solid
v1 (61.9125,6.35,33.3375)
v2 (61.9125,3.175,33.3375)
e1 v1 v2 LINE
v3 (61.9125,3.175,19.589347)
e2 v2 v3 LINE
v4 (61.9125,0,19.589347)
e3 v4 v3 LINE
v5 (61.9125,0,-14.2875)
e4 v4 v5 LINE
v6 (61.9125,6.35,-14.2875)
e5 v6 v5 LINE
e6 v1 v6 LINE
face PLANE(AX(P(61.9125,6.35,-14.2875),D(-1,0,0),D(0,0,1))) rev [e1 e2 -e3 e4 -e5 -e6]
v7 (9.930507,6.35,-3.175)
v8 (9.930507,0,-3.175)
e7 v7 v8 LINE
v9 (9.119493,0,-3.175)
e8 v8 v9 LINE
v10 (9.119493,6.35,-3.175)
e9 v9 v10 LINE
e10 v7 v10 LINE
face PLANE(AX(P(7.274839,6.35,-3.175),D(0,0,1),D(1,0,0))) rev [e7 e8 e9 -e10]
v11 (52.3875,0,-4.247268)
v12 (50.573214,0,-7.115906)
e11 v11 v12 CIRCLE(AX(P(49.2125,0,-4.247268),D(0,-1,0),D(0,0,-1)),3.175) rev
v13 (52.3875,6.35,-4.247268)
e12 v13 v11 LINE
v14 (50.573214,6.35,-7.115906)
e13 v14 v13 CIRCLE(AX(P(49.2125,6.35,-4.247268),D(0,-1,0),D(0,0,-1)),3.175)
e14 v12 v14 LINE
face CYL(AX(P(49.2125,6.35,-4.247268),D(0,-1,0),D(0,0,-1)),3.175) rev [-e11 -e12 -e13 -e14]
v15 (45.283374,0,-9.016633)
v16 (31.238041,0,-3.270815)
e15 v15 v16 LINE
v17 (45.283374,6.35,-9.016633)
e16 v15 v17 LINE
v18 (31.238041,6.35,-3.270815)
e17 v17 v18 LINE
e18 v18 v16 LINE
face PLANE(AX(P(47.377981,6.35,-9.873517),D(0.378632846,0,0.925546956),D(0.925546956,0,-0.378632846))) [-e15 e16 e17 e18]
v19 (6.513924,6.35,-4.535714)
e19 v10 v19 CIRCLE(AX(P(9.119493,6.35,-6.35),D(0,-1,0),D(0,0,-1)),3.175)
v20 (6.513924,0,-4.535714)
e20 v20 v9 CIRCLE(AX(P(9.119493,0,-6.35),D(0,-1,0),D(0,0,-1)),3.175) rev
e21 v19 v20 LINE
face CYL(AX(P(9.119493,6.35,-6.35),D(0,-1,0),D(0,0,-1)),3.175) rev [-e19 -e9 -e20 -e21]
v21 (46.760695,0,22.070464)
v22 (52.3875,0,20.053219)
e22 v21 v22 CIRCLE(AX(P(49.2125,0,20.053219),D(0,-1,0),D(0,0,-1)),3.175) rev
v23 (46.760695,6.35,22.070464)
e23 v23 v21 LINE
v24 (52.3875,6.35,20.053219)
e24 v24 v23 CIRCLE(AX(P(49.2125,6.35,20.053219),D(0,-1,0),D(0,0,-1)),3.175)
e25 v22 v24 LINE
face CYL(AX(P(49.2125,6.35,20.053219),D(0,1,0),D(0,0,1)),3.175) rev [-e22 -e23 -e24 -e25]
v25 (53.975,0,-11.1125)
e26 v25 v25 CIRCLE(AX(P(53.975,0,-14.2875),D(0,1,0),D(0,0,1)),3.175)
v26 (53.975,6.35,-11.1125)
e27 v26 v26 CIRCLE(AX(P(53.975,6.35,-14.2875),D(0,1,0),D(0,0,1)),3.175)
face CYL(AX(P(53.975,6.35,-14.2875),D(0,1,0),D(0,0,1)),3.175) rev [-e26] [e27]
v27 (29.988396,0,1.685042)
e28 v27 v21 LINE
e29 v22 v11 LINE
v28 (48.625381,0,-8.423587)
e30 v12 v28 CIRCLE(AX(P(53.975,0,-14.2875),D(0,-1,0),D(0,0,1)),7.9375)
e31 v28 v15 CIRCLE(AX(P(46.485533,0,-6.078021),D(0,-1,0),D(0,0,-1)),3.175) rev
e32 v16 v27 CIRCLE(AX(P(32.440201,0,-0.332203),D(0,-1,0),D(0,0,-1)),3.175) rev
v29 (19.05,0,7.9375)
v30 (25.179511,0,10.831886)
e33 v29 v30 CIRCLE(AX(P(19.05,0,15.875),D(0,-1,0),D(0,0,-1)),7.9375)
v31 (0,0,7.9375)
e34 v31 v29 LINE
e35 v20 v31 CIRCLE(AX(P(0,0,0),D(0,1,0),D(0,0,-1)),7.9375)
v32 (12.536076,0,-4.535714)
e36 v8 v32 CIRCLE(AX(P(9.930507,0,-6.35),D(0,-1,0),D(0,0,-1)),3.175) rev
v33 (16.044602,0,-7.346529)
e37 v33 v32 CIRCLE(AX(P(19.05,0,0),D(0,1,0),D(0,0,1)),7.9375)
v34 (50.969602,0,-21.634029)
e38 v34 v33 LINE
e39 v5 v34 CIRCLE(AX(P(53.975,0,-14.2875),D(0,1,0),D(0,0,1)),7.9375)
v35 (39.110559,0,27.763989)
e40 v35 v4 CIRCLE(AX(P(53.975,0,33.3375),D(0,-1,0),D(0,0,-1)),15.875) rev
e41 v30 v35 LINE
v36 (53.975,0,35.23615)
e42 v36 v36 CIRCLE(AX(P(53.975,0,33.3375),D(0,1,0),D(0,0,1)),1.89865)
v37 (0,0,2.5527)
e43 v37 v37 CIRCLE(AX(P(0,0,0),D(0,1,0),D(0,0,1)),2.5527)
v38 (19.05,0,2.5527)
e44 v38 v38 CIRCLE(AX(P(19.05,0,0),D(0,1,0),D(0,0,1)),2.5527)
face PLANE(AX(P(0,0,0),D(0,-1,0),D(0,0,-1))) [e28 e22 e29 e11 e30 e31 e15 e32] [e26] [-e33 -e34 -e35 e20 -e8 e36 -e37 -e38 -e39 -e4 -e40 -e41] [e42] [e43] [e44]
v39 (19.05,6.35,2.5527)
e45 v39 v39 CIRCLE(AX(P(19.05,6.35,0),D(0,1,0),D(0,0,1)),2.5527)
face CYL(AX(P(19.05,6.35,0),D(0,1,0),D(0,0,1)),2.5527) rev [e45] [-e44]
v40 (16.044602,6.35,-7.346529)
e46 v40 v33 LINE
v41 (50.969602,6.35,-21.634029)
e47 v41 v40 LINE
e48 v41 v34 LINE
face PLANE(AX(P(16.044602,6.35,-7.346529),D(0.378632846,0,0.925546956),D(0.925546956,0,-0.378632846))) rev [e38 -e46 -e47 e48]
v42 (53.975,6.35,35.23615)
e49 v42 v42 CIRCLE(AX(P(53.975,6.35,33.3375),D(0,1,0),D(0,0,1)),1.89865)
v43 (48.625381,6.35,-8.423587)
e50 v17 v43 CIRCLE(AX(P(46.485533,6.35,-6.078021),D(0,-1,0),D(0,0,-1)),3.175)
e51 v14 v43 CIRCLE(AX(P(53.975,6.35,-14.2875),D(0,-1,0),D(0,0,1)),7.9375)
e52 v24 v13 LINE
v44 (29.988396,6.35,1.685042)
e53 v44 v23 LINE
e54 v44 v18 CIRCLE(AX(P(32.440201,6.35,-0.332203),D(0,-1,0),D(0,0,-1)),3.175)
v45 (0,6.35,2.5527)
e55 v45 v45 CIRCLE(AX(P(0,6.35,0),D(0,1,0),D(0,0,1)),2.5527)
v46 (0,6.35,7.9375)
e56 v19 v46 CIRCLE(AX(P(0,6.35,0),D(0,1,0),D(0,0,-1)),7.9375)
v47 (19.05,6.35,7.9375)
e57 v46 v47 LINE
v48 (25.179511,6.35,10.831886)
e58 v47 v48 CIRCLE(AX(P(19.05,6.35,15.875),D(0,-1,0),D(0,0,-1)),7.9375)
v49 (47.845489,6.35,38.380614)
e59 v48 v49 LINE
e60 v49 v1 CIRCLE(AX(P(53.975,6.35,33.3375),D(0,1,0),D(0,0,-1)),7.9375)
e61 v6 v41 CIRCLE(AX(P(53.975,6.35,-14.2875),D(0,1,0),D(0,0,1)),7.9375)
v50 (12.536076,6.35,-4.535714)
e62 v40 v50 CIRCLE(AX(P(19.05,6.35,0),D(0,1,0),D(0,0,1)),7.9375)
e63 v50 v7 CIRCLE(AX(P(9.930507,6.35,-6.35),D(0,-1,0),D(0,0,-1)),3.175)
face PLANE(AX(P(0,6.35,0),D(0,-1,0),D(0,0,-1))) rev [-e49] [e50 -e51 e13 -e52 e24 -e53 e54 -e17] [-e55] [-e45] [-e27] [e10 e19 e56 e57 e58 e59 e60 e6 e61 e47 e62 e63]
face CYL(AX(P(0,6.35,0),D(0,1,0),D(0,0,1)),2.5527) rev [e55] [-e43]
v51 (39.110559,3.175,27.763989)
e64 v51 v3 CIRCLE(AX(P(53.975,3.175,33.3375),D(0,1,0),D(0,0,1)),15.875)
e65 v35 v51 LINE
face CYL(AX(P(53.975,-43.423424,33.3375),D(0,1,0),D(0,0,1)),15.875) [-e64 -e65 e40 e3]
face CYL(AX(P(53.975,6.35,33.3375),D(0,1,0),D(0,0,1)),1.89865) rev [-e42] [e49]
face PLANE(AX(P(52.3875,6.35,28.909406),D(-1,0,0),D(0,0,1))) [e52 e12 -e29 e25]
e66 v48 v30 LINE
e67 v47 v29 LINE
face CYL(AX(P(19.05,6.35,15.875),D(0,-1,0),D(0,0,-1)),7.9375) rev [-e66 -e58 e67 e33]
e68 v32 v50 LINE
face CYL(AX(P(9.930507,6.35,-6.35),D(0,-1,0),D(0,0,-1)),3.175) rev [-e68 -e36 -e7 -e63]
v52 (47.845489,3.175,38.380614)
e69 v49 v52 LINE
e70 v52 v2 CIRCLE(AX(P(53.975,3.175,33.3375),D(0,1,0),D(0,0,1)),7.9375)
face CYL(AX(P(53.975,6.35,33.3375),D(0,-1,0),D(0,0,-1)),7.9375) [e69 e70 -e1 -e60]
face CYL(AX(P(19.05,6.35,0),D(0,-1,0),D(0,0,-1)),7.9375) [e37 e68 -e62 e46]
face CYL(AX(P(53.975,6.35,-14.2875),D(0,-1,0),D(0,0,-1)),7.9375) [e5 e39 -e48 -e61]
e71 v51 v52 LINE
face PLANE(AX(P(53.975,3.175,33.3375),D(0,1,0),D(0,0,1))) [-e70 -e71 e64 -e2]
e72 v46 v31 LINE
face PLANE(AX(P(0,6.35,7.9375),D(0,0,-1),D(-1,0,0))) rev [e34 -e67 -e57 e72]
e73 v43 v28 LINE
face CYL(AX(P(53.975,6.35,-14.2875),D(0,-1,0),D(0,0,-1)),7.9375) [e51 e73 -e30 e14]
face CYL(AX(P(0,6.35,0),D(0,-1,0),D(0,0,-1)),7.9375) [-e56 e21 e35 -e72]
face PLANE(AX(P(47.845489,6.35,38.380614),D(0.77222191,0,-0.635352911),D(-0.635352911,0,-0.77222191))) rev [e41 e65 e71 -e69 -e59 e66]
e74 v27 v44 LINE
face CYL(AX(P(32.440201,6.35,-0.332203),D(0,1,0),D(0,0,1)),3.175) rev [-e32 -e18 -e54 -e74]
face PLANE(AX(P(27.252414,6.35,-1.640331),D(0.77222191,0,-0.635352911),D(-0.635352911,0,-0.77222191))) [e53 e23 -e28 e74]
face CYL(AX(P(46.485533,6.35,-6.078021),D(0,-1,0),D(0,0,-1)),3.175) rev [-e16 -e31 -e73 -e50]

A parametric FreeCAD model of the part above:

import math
import FreeCAD as App
import Part
import Sketcher
from FreeCAD import Vector
Q = App.Units.Quantity


def edges_at(feature, points):
    """Names of the edges that pass closest to the given points."""
    edges = feature.Shape.Edges
    near = lambda p: min(range(len(edges)), key=lambda i: edges[i].distToShape(Part.Vertex(*p))[0])
    return sorted({f"Edge{near(p) + 1}" for p in points})

doc = App.newDocument("Part")
body = doc.addObject("PartDesign::Body", "Body")

sketch1 = body.newObject("Sketcher::SketchObject", "Sketch")
sketch1.AttachmentSupport = (doc.getObject("XZ_Plane"), [""])
sketch1.MapMode = "FlatFace"
sketch1.addGeometry([
    Part.LineSegment(Vector(0, 7.9375, 0), Vector(19.05, 7.9375, 0)),
    Part.ArcOfCircle(Part.Circle(Vector(19.05, 15.875, 0), Vector(0, 0, 1), 7.9375), math.radians(-90), math.radians(-39.446164)),
    Part.LineSegment(Vector(25.179511, 10.831886, 0), Vector(47.845489, 38.380614, 0)),
    Part.ArcOfCircle(Part.Circle(Vector(53.975, 33.3375, 0), Vector(0, 0, 1), 7.9375), math.radians(0), math.radians(140.553836)),
    Part.LineSegment(Vector(61.9125, 33.3375, 0), Vector(61.9125, -14.2875, 0)),
    Part.ArcOfCircle(Part.Circle(Vector(53.975, -14.2875, 0), Vector(0, 0, 1), 7.9375), math.radians(-112.249024), math.radians(0)),
    Part.LineSegment(Vector(50.969602, -21.634029, 0), Vector(16.044602, -7.346529, 0)),
    Part.ArcOfCircle(Part.Circle(Vector(19.05, 0, 0), Vector(0, 0, 1), 7.9375), math.radians(-156.421822), math.radians(-112.249024)),
    Part.LineSegment(Vector(11.775161, -3.175, 0), Vector(7.274839, -3.175, 0)),
    Part.ArcOfCircle(Part.Circle(Vector(0, 0, 0), Vector(0, 0, 1), 7.9375), math.radians(-39.659248), math.radians(-23.578178)),
    Part.LineSegment(Vector(6.110714, -5.065874, 0), Vector(-18.894457, -35.228374, 0)),
    Part.ArcOfCircle(Part.Circle(Vector(-25.005171, -30.1625, 0), Vector(0, 0, 1), 7.9375), math.radians(-120), math.radians(-39.659248)),
    Part.LineSegment(Vector(-28.973921, -37.036577, 0), Vector(-67.46875, -14.811577, 0)),
    Part.ArcOfCircle(Part.Circle(Vector(-63.5, -7.9375, 0), Vector(0, 0, 1), 7.9375), math.radians(97.125016), math.radians(240)),
    Part.LineSegment(Vector(-64.484526, -0.061294, 0), Vector(-0.984526, 7.876206, 0)),
    Part.ArcOfCircle(Part.Circle(Vector(0, 0, 0), Vector(0, 0, 1), 7.9375), math.radians(90), math.radians(97.125016)),
    Part.LineSegment(Vector(52.3875, 28.909406, 0), Vector(27.252414, -1.640331, 0)),
    Part.LineSegment(Vector(27.252414, -1.640331, 0), Vector(47.377981, -9.873517, 0)),
    Part.ArcOfCircle(Part.Circle(Vector(53.975, -14.2875, 0), Vector(0, 0, 1), 7.9375), math.radians(101.536959), math.radians(146.214017)),
    Part.LineSegment(Vector(52.3875, -6.51037, 0), Vector(52.3875, 28.909406, 0)),
    Part.LineSegment(Vector(-11.734123, -3.06662, 0), Vector(-49.230437, -7.753659, 0)),
    Part.ArcOfCircle(Part.Circle(Vector(-48.836627, -10.904141, 0), Vector(0, 0, 1), 3.175), math.radians(97.125016), math.radians(240)),
    Part.LineSegment(Vector(-50.424127, -13.653772, 0), Vector(-30.946613, -24.89912, 0)),
    Part.ArcOfCircle(Part.Circle(Vector(-25.005171, -30.1625, 0), Vector(0, 0, 1), 7.9375), math.radians(61.877711), math.radians(138.463041)),
    Part.LineSegment(Vector(-21.26379, -23.162073, 0), Vector(-8.896027, -8.243452, 0)),
    Part.ArcOfCircle(Part.Circle(Vector(-11.340312, -6.217102, 0), Vector(0, 0, 1), 3.175), math.radians(-39.659248), math.radians(97.125016)),
], False)
sketch1.addConstraint([
    Sketcher.Constraint("Tangent", 0, 2, 1, 1),
    Sketcher.Constraint("Tangent", 1, 2, 2, 1),
    Sketcher.Constraint("Tangent", 2, 2, 3, 2),
    Sketcher.Constraint("Tangent", 3, 1, 4, 1),
    Sketcher.Constraint("Tangent", 4, 2, 5, 2),
    Sketcher.Constraint("Tangent", 5, 1, 6, 1),
    Sketcher.Constraint("Tangent", 6, 2, 7, 2),
    Sketcher.Constraint("Coincident", 7, 1, 8, 1),
    Sketcher.Constraint("Coincident", 8, 2, 9, 2),
    Sketcher.Constraint("Tangent", 9, 1, 10, 1),
    Sketcher.Constraint("Tangent", 10, 2, 11, 2),
    Sketcher.Constraint("Tangent", 11, 1, 12, 1),
    Sketcher.Constraint("Tangent", 12, 2, 13, 2),
    Sketcher.Constraint("Tangent", 13, 1, 14, 1),
    Sketcher.Constraint("Tangent", 14, 2, 15, 2),
    Sketcher.Constraint("Tangent", 15, 1, 0, 1),
    Sketcher.Constraint("Coincident", 16, 2, 17, 1),
    Sketcher.Constraint("Coincident", 17, 2, 18, 2),
    Sketcher.Constraint("Coincident", 18, 1, 19, 1),
    Sketcher.Constraint("Coincident", 19, 2, 16, 1),
    Sketcher.Constraint("Tangent", 20, 2, 21, 1),
    Sketcher.Constraint("Tangent", 21, 2, 22, 1),
    Sketcher.Constraint("Coincident", 22, 2, 23, 2),
    Sketcher.Constraint("Coincident", 23, 1, 24, 1),
    Sketcher.Constraint("Tangent", 24, 2, 25, 1),
    Sketcher.Constraint("Tangent", 25, 2, 20, 1),
    Sketcher.Constraint("Horizontal", 0),
    Sketcher.Constraint("Vertical", 4),
    Sketcher.Constraint("Horizontal", 8),
    Sketcher.Constraint("Vertical", 19),
    Sketcher.Constraint("Coincident", 9, 3, -1, 1),
    Sketcher.Constraint("Coincident", 15, 3, -1, 1),
    Sketcher.Constraint("Coincident", 18, 3, 5, 3),
    Sketcher.Constraint("Coincident", 23, 3, 11, 3),
    Sketcher.Constraint("Equal", 1, 3),
    Sketcher.Constraint("Equal", 3, 5),
    Sketcher.Constraint("Equal", 5, 7),
    Sketcher.Constraint("Equal", 7, 9),
    Sketcher.Constraint("Equal", 9, 11),
    Sketcher.Constraint("Equal", 11, 13),
    Sketcher.Constraint("Equal", 13, 15),
    Sketcher.Constraint("Equal", 15, 18),
    Sketcher.Constraint("Equal", 18, 23),
    Sketcher.Constraint("Equal", 21, 25),
    Sketcher.Constraint("PointOnObject", 7, 3, -1),
    Sketcher.Constraint("Parallel", 2, 16),
    Sketcher.Constraint("Parallel", 6, 17),
    Sketcher.Constraint("Parallel", 14, 20),
    Sketcher.Constraint("Parallel", 12, 22),
    Sketcher.Constraint("Parallel", 10, 24),
    Sketcher.Constraint("Vertical", 1, 3, 7, 3),
    Sketcher.Constraint("Angle", 12, Q("150 deg")),
    Sketcher.Constraint("Radius", 1, Q("0.3125 in")),
    Sketcher.Constraint("Radius", 21, Q("0.125 in")),
    Sketcher.Constraint("DistanceX", 0, 1, 0, 2, Q("0.75 in")),
    Sketcher.Constraint("DistanceX", 13, 3, -1, 1, Q("2.5 in")),
    Sketcher.Constraint("DistanceY", 11, 3, 3, 3, Q("2.5 in")),
    Sketcher.Constraint("Distance", 12, Q("1.75 in")),
    Sketcher.Constraint("DistanceY", 4, 2, 4, 1, Q("1.875 in")),
    Sketcher.Constraint("DistanceX", -1, 1, 3, 3, Q("2.125 in")),
    Sketcher.Constraint("DistanceY", -1, 1, 3, 3, Q("1.3125 in")),
    Sketcher.Constraint("DistanceY", 7, 1, -1, 1, Q("0.125 in")),
    Sketcher.Constraint("DistanceX", -1, 1, 18, 1, Q("2.0625 in")),
    Sketcher.Constraint("DistanceY", 25, 3, -1, 1, 6.217102),
    Sketcher.Constraint("DistanceX", 13, 1, 21, 3, 15.647899),
    Sketcher.Constraint("DistanceY", 6, 2, 16, 2, 5.706198),
    Sketcher.Constraint("DistanceY", 10, 2, 23, 1, 12.066302),
    Sketcher.Constraint("DistanceY", 19, 1, 19, 2, 35.419776),
])
pad1 = body.newObject("PartDesign::Pad", "Pad")
pad1.Profile = sketch1
pad1.Length = Q("0.25 in")
pad1.Reversed = True
doc.recompute()

fillet = body.newObject("PartDesign::Fillet", "Fillet")
fillet.Base = (pad1, edges_at(pad1, [
    (47.378, 3.175, -9.874),
    (27.252, 3.175, -1.64),
    (52.388, 3.175, 28.909),
    (52.388, 3.175, -6.51),
    (-21.264, 3.175, -23.162),
    (-30.947, 3.175, -24.899),
]))
fillet.Radius = Q("0.125 in")

sketch2 = body.newObject("Sketcher::SketchObject", "Sketch001")
sketch2.AttachmentSupport = (doc.getObject("XZ_Plane"), [""])
sketch2.MapMode = "FlatFace"
sketch2.AttachmentOffset = App.Placement(Vector(0, 0, -0.25 * 25.4), App.Rotation())
sketch2.addGeometry([
    Part.Circle(Vector(0, 0, 0), Vector(0, 0, 1), 2.5527),
    Part.Circle(Vector(19.05, 0, 0), Vector(0, 0, 1), 2.5527),
], False)
sketch2.addConstraint([
    Sketcher.Constraint("Coincident", 0, 3, -1, 1),
    Sketcher.Constraint("Equal", 0, 1),
    Sketcher.Constraint("PointOnObject", 1, 3, -1),
    Sketcher.Constraint("Diameter", 0, Q("0.201 in")),
    Sketcher.Constraint("DistanceX", -1, 1, 1, 3, Q("0.75 in")),
])
doc.recompute()
hole = body.newObject("PartDesign::Hole", "Hole")
hole.Profile = sketch2
hole.ThreadType = "None"
hole.Diameter = Q("0.201 in")
hole.DepthType = "ThroughAll"
hole.Reversed = True

sketch3 = body.newObject("Sketcher::SketchObject", "Sketch002")
sketch3.AttachmentSupport = (doc.getObject("XZ_Plane"), [""])
sketch3.MapMode = "FlatFace"
sketch3.AttachmentOffset = App.Placement(Vector(0, 0, -0.25 * 25.4), App.Rotation())
sketch3.addGeometry([
    Part.Circle(Vector(53.975, -14.2875, 0), Vector(0, 0, 1), 3.175),
    Part.Circle(Vector(-63.5, -7.9375, 0), Vector(0, 0, 1), 3.175),
], False)
sketch3.addConstraint([
    Sketcher.Constraint("Equal", 0, 1),
    Sketcher.Constraint("Diameter", 0, Q("0.25 in")),
    Sketcher.Constraint("DistanceX", 1, 3, -1, 1, Q("2.5 in")),
    Sketcher.Constraint("DistanceY", 0, 3, 1, 3, Q("0.25 in")),
    Sketcher.Constraint("DistanceX", -1, 1, 0, 3, Q("2.125 in")),
    Sketcher.Constraint("DistanceY", 0, 3, -1, 1, Q("0.5625 in")),
])
doc.recompute()
hole2 = body.newObject("PartDesign::Hole", "Hole001")
hole2.Profile = sketch3
hole2.ThreadType = "None"
hole2.Diameter = Q("0.25 in")
hole2.DepthType = "ThroughAll"
hole2.Reversed = True
doc.recompute()

fillet2 = body.newObject("PartDesign::Fillet", "Fillet001")
fillet2.Base = (hole2, edges_at(hole2, [(7.275, 3.175, -3.175), (11.775, 3.175, -3.175)]))
fillet2.Radius = Q("0.125 in")

sketch4 = body.newObject("Sketcher::SketchObject", "Sketch003")
sketch4.AttachmentSupport = (doc.getObject("XZ_Plane"), [""])
sketch4.MapMode = "FlatFace"
sketch4.AttachmentOffset = App.Placement(Vector(0, 0, -0.25 * 25.4), App.Rotation())
sketch4.addGeometry([
    Part.Circle(Vector(53.975, 33.3375, 0), Vector(0, 0, 1), 1.89865),
    Part.Circle(Vector(-25.005171, -30.1625, 0), Vector(0, 0, 1), 1.89865),
], False)
sketch4.addConstraint([
    Sketcher.Constraint("Equal", 0, 1),
    Sketcher.Constraint("Diameter", 0, Q("0.1495 in")),
    Sketcher.Constraint("DistanceY", 1, 3, 0, 3, Q("2.5 in")),
    Sketcher.Constraint("DistanceX", -1, 1, 0, 3, Q("2.125 in")),
    Sketcher.Constraint("DistanceY", -1, 1, 0, 3, Q("1.3125 in")),
    Sketcher.Constraint("DistanceX", 1, 3, -1, 1, 25.005171),
])
doc.recompute()
hole3 = body.newObject("PartDesign::Hole", "Hole002")
hole3.Profile = sketch4
hole3.ThreadType = "None"
hole3.Diameter = Q("0.1495 in")
hole3.DepthType = "ThroughAll"
hole3.Reversed = True

sketch5 = body.newObject("Sketcher::SketchObject", "Sketch004")
sketch5.AttachmentSupport = (doc.getObject("XZ_Plane"), [""])
sketch5.MapMode = "FlatFace"
sketch5.AttachmentOffset = App.Placement(Vector(0, 0, -0.125 * 25.4), App.Rotation())
sketch5.addGeometry([
    Part.LineSegment(Vector(47.845489, 38.380614, 0), Vector(39.110559, 27.763989, 0)),
    Part.ArcOfCircle(Part.Circle(Vector(53.975, 33.3375, 0), Vector(0, 0, 1), 15.875), math.radians(-60), math.radians(200.553836)),
    Part.LineSegment(Vector(61.9125, 19.589347, 0), Vector(61.9125, 33.3375, 0)),
    Part.ArcOfCircle(Part.Circle(Vector(53.975, 33.3375, 0), Vector(0, 0, 1), 7.9375), math.radians(0), math.radians(140.553836)),
    Part.LineSegment(Vector(-40.880171, -30.1625, 0), Vector(-28.973921, -37.036577, 0)),
    Part.ArcOfCircle(Part.Circle(Vector(-25.005171, -30.1625, 0), Vector(0, 0, 1), 7.9375), math.radians(-120), math.radians(-39.659248)),
    Part.LineSegment(Vector(-18.894457, -35.228374, 0), Vector(-10.120105, -24.644308, 0)),
    Part.ArcOfCircle(Part.Circle(Vector(-25.005171, -30.1625, 0), Vector(0, 0, 1), 15.875), math.radians(180), math.radians(380.340752)),
], False)
sketch5.addConstraint([
    Sketcher.Constraint("Coincident", 0, 2, 1, 2),
    Sketcher.Constraint("Coincident", 1, 1, 2, 1),
    Sketcher.Constraint("Tangent", 2, 2, 3, 1),
    Sketcher.Constraint("Tangent", 3, 2, 0, 1),
    Sketcher.Constraint("Tangent", 4, 2, 5, 1),
    Sketcher.Constraint("Tangent", 5, 2, 6, 1),
    Sketcher.Constraint("Coincident", 6, 2, 7, 2),
    Sketcher.Constraint("Coincident", 7, 1, 4, 1),
    Sketcher.Constraint("Vertical", 2),
    Sketcher.Constraint("Coincident", 3, 3, 1, 3),
    Sketcher.Constraint("Coincident", 7, 3, 5, 3),
    Sketcher.Constraint("Equal", 3, 5),
    Sketcher.Constraint("Equal", 1, 7),
    Sketcher.Constraint("Horizontal", 5, 3, 7, 1),
    Sketcher.Constraint("Angle", 4, Q("-30 deg")),
    Sketcher.Constraint("Radius", 1, Q("0.625 in")),
    Sketcher.Constraint("DistanceY", 5, 3, 1, 3, Q("2.5 in")),
    Sketcher.Constraint("DistanceX", -1, 1, 1, 3, Q("2.125 in")),
    Sketcher.Constraint("DistanceY", -1, 1, 1, 3, Q("1.3125 in")),
    Sketcher.Constraint("DistanceX", 5, 3, -1, 1, 25.005171),
    Sketcher.Constraint("DistanceX", -1, 1, 0, 2, 39.110559),
    Sketcher.Constraint("DistanceY", 5, 2, 1, 1, 54.817721),
])
pad2 = body.newObject("PartDesign::Pad", "Pad001")
pad2.Profile = sketch5
pad2.Length = Q("0.125 in")

sketch6 = body.newObject("Sketcher::SketchObject", "Sketch005")
sketch6.AttachmentSupport = (doc.getObject("XZ_Plane"), [""])
sketch6.MapMode = "FlatFace"
sketch6.AttachmentOffset = App.Placement(Vector(0, 0, -0.25 * 25.4), App.Rotation())
sketch6.addGeometry([
    Part.LineSegment(Vector(6.110714, -5.065874, 0), Vector(-10.120105, -24.644308, 0)),
    Part.ArcOfCircle(Part.Circle(Vector(-25.005171, -30.1625, 0), Vector(0, 0, 1), 15.875), math.radians(180), math.radians(380.340752)),
    Part.LineSegment(Vector(-40.880171, -30.1625, 0), Vector(-67.46875, -14.811577, 0)),
    Part.ArcOfCircle(Part.Circle(Vector(-63.5, -7.9375, 0), Vector(0, 0, 1), 7.9375), math.radians(97.125016), math.radians(240)),
    Part.LineSegment(Vector(-64.484526, -0.061294, 0), Vector(-0.984526, 7.876206, 0)),
    Part.ArcOfCircle(Part.Circle(Vector(0, 0, 0), Vector(0, 0, 1), 7.9375), math.radians(97.125016), math.radians(320.340752)),
], False)
sketch6.addConstraint([
    Sketcher.Constraint("Coincident", 0, 2, 1, 2),
    Sketcher.Constraint("Coincident", 1, 1, 2, 1),
    Sketcher.Constraint("Tangent", 2, 2, 3, 2),
    Sketcher.Constraint("Tangent", 3, 1, 4, 1),
    Sketcher.Constraint("Tangent", 4, 2, 5, 1),
    Sketcher.Constraint("Tangent", 5, 2, 0, 1),
    Sketcher.Constraint("Coincident", 5, 3, -1, 1),
    Sketcher.Constraint("Equal", 3, 5),
    Sketcher.Constraint("Angle", 2, Q("150 deg")),
    Sketcher.Constraint("Radius", 1, Q("0.625 in")),
    Sketcher.Constraint("Radius", 3, Q("0.3125 in")),
    Sketcher.Constraint("DistanceX", 3, 3, -1, 1, Q("2.5 in")),
    Sketcher.Constraint("DistanceY", 1, 3, -1, 1, Q("1.1875 in")),
    Sketcher.Constraint("DistanceY", 3, 3, -1, 1, Q("0.3125 in")),
    Sketcher.Constraint("DistanceY", 1, 1, -1, 1, Q("1.1875 in")),
    Sketcher.Constraint("Distance", 0, 25.431369),
])
pocket1 = body.newObject("PartDesign::Pocket", "Pocket")
pocket1.Profile = sketch6
pocket1.Type = "ThroughAll"
pocket1.Reversed = True

doc.recompute()
